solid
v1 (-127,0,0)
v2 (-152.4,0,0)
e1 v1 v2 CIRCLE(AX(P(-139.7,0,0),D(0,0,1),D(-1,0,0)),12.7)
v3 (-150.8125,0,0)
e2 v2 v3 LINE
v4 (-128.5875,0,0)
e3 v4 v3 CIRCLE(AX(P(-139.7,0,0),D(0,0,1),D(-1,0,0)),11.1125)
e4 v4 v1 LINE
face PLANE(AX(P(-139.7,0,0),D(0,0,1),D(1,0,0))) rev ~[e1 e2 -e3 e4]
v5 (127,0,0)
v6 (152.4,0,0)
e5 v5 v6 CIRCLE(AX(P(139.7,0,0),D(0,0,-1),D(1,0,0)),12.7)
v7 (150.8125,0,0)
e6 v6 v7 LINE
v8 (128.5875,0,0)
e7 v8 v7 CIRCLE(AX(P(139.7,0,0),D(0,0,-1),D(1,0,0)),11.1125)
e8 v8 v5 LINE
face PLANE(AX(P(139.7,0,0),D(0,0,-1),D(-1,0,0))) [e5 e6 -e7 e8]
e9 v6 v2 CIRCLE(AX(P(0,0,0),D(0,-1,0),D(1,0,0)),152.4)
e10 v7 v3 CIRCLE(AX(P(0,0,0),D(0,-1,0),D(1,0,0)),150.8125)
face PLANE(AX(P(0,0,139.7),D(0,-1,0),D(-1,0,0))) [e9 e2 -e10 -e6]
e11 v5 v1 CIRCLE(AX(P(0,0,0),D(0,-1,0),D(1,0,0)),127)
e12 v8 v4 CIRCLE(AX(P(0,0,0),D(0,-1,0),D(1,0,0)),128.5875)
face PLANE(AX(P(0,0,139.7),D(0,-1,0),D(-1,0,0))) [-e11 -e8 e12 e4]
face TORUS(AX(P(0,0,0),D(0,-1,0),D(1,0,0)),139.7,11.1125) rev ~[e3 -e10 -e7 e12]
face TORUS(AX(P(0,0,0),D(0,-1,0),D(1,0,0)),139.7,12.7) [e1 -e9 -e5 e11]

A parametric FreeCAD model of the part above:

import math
import FreeCAD as App
import Part
import Sketcher
Q = App.Units.Quantity

doc = App.newDocument("Part")
body = doc.addObject("PartDesign::Body", "Body")

# Sketch on XY plane
sketch1 = body.newObject("Sketcher::SketchObject", "Sketch")
sketch1.AttachmentSupport = (doc.getObject("XY_Plane"), [""])
sketch1.MapMode = "FlatFace"
sketch1.addGeometry(Part.Circle(App.Vector(-140, 0, 0), App.Vector(0, 0, 1), 13), False)
sketch1.addConstraint([
    Sketcher.Constraint("PointOnObject", 0, 3, -1),
    Sketcher.Constraint("Diameter", 0, Q("1 in")),
    Sketcher.Constraint("DistanceX", 0, 3, -1, 1, Q("5.5 in")),
])

# Sketch on XZ plane
sketch2 = body.newObject("Sketcher::SketchObject", "Sketch001")
sketch2.AttachmentSupport = (doc.getObject("XZ_Plane"), [""])
sketch2.MapMode = "FlatFace"
sketch2.addGeometry(Part.ArcOfCircle(Part.Circle(App.Vector(0, 0, 0), App.Vector(0, 0, 1), 140), math.radians(0), math.radians(180)), False)
sketch2.addConstraint([
    Sketcher.Constraint("Coincident", 0, 3, -1, 1),
    Sketcher.Constraint("PointOnObject", 0, 1, -1),
    Sketcher.Constraint("PointOnObject", 0, 2, -1),
    Sketcher.Constraint("Radius", 0, Q("5.5 in")),
])
doc.recompute()

additivepipe = body.newObject("PartDesign::AdditivePipe", "AdditivePipe")
additivepipe.Profile = sketch1
additivepipe.Spine = (sketch2, ["Edge1"])

# Sketch on XY plane
sketch3 = body.newObject("Sketcher::SketchObject", "Sketch002")
sketch3.AttachmentSupport = (doc.getObject("XY_Plane"), [""])
sketch3.MapMode = "FlatFace"
sketch3.addGeometry([
    Part.ArcOfCircle(Part.Circle(App.Vector(-140, 0, 0), App.Vector(0, 0, 1), 13), math.radians(180), math.radians(360)),
    Part.LineSegment(App.Vector(-152, 0, 0), App.Vector(-127, 0, 0)),
], False)
sketch3.addConstraint([
    Sketcher.Constraint("Coincident", 0, 1, 1, 1),
    Sketcher.Constraint("Coincident", 1, 2, 0, 2),
    Sketcher.Constraint("Horizontal", 1),
    Sketcher.Constraint("PointOnObject", 0, 3, -1),
    Sketcher.Constraint("PointOnObject", 0, 1, -1),
    Sketcher.Constraint("Radius", 0, Q("0.5 in")),
    Sketcher.Constraint("DistanceX", 0, 1, -1, 1, Q("6 in")),
])

# Sketch on XZ plane
sketch4 = body.newObject("Sketcher::SketchObject", "Sketch003")
sketch4.AttachmentSupport = (doc.getObject("XZ_Plane"), [""])
sketch4.MapMode = "FlatFace"
sketch4.addGeometry(Part.ArcOfCircle(Part.Circle(App.Vector(0, 0, 0), App.Vector(0, 0, 1), 140), math.radians(0), math.radians(180)), False)
sketch4.addConstraint([
    Sketcher.Constraint("Coincident", 0, 3, -1, 1),
    Sketcher.Constraint("PointOnObject", 0, 1, -1),
    Sketcher.Constraint("PointOnObject", 0, 2, -1),
    Sketcher.Constraint("Radius", 0, Q("5.5 in")),
])
doc.recompute()

subtractivepipe = body.newObject("PartDesign::SubtractivePipe", "SubtractivePipe")
subtractivepipe.Profile = sketch3
subtractivepipe.Spine = (sketch4, ["Edge1"])

# Sketch on XY plane
sketch5 = body.newObject("Sketcher::SketchObject", "Sketch004")
sketch5.AttachmentSupport = (doc.getObject("XY_Plane"), [""])
sketch5.MapMode = "FlatFace"
sketch5.addGeometry(Part.Circle(App.Vector(-140, 0, 0), App.Vector(0, 0, 1), 11), False)
sketch5.addConstraint([
    Sketcher.Constraint("PointOnObject", 0, 3, -1),
    Sketcher.Constraint("Diameter", 0, Q("0.875 in")),
    Sketcher.Constraint("DistanceX", 0, 3, -1, 1, Q("5.5 in")),
])

# Sketch on XZ plane
sketch6 = body.newObject("Sketcher::SketchObject", "Sketch005")
sketch6.AttachmentSupport = (doc.getObject("XZ_Plane"), [""])
sketch6.MapMode = "FlatFace"
sketch6.addGeometry(Part.ArcOfCircle(Part.Circle(App.Vector(0, 0, 0), App.Vector(0, 0, 1), 140), math.radians(0), math.radians(180)), False)
sketch6.addConstraint([
    Sketcher.Constraint("Coincident", 0, 3, -1, 1),
    Sketcher.Constraint("PointOnObject", 0, 1, -1),
    Sketcher.Constraint("PointOnObject", 0, 2, -1),
    Sketcher.Constraint("Radius", 0, Q("5.5 in")),
])
doc.recompute()

subtractivepipe2 = body.newObject("PartDesign::SubtractivePipe", "SubtractivePipe001")
subtractivepipe2.Profile = sketch5
subtractivepipe2.Spine = (sketch6, ["Edge1"])

doc.recompute()
